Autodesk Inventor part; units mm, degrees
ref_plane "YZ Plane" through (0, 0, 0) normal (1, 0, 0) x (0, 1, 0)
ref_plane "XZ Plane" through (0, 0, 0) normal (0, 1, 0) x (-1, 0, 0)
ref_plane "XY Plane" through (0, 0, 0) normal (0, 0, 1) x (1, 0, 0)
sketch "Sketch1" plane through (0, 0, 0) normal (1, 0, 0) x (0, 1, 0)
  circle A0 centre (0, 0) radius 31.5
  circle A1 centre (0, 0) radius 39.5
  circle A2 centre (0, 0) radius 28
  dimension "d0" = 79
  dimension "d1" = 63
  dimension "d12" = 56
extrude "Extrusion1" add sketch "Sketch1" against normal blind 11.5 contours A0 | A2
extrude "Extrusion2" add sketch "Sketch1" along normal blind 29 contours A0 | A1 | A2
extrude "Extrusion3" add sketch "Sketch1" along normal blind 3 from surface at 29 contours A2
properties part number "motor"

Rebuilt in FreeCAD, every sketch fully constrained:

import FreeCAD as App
import Part
import Sketcher

doc = App.newDocument("Part")
body = doc.addObject("PartDesign::Body", "Body")

sketch1 = body.newObject("Sketcher::SketchObject", "Sketch")
sketch1.AttachmentSupport = (doc.getObject("YZ_Plane"), [""])
sketch1.MapMode = "FlatFace"
sketch1.addGeometry(Part.Circle(App.Vector(0, 0, 0), App.Vector(0, 0, 1), 32), False)
sketch1.addConstraint(Sketcher.Constraint("Coincident", 0, 3, -1, 1))
sketch1.addConstraint(Sketcher.Constraint("Diameter", 0, 63.0))
pad1 = body.newObject("PartDesign::Pad", "Pad")
pad1.Profile = sketch1
pad1.Length = 11.5
pad1.Reversed = True

sketch2 = body.newObject("Sketcher::SketchObject", "Sketch001")
sketch2.AttachmentSupport = (doc.getObject("YZ_Plane"), [""])
sketch2.MapMode = "FlatFace"
sketch2.addGeometry(Part.Circle(App.Vector(0, 0, 0), App.Vector(0, 0, 1), 40), False)
sketch2.addConstraint(Sketcher.Constraint("Coincident", 0, 3, -1, 1))
sketch2.addConstraint(Sketcher.Constraint("Diameter", 0, 79.0))
pad2 = body.newObject("PartDesign::Pad", "Pad001")
pad2.Profile = sketch2
pad2.Length = 29

sketch3 = body.newObject("Sketcher::SketchObject", "Sketch002")
sketch3.AttachmentSupport = (doc.getObject("YZ_Plane"), [""])
sketch3.MapMode = "FlatFace"
sketch3.AttachmentOffset = App.Placement(App.Vector(0, 0, 29), App.Rotation())
sketch3.addGeometry(Part.Circle(App.Vector(0, 0, 0), App.Vector(0, 0, 1), 28), False)
sketch3.addConstraint(Sketcher.Constraint("Coincident", 0, 3, -1, 1))
sketch3.addConstraint(Sketcher.Constraint("Diameter", 0, 56.0))
pad3 = body.newObject("PartDesign::Pad", "Pad002")
pad3.Profile = sketch3
pad3.Length = 3

doc.recompute()
